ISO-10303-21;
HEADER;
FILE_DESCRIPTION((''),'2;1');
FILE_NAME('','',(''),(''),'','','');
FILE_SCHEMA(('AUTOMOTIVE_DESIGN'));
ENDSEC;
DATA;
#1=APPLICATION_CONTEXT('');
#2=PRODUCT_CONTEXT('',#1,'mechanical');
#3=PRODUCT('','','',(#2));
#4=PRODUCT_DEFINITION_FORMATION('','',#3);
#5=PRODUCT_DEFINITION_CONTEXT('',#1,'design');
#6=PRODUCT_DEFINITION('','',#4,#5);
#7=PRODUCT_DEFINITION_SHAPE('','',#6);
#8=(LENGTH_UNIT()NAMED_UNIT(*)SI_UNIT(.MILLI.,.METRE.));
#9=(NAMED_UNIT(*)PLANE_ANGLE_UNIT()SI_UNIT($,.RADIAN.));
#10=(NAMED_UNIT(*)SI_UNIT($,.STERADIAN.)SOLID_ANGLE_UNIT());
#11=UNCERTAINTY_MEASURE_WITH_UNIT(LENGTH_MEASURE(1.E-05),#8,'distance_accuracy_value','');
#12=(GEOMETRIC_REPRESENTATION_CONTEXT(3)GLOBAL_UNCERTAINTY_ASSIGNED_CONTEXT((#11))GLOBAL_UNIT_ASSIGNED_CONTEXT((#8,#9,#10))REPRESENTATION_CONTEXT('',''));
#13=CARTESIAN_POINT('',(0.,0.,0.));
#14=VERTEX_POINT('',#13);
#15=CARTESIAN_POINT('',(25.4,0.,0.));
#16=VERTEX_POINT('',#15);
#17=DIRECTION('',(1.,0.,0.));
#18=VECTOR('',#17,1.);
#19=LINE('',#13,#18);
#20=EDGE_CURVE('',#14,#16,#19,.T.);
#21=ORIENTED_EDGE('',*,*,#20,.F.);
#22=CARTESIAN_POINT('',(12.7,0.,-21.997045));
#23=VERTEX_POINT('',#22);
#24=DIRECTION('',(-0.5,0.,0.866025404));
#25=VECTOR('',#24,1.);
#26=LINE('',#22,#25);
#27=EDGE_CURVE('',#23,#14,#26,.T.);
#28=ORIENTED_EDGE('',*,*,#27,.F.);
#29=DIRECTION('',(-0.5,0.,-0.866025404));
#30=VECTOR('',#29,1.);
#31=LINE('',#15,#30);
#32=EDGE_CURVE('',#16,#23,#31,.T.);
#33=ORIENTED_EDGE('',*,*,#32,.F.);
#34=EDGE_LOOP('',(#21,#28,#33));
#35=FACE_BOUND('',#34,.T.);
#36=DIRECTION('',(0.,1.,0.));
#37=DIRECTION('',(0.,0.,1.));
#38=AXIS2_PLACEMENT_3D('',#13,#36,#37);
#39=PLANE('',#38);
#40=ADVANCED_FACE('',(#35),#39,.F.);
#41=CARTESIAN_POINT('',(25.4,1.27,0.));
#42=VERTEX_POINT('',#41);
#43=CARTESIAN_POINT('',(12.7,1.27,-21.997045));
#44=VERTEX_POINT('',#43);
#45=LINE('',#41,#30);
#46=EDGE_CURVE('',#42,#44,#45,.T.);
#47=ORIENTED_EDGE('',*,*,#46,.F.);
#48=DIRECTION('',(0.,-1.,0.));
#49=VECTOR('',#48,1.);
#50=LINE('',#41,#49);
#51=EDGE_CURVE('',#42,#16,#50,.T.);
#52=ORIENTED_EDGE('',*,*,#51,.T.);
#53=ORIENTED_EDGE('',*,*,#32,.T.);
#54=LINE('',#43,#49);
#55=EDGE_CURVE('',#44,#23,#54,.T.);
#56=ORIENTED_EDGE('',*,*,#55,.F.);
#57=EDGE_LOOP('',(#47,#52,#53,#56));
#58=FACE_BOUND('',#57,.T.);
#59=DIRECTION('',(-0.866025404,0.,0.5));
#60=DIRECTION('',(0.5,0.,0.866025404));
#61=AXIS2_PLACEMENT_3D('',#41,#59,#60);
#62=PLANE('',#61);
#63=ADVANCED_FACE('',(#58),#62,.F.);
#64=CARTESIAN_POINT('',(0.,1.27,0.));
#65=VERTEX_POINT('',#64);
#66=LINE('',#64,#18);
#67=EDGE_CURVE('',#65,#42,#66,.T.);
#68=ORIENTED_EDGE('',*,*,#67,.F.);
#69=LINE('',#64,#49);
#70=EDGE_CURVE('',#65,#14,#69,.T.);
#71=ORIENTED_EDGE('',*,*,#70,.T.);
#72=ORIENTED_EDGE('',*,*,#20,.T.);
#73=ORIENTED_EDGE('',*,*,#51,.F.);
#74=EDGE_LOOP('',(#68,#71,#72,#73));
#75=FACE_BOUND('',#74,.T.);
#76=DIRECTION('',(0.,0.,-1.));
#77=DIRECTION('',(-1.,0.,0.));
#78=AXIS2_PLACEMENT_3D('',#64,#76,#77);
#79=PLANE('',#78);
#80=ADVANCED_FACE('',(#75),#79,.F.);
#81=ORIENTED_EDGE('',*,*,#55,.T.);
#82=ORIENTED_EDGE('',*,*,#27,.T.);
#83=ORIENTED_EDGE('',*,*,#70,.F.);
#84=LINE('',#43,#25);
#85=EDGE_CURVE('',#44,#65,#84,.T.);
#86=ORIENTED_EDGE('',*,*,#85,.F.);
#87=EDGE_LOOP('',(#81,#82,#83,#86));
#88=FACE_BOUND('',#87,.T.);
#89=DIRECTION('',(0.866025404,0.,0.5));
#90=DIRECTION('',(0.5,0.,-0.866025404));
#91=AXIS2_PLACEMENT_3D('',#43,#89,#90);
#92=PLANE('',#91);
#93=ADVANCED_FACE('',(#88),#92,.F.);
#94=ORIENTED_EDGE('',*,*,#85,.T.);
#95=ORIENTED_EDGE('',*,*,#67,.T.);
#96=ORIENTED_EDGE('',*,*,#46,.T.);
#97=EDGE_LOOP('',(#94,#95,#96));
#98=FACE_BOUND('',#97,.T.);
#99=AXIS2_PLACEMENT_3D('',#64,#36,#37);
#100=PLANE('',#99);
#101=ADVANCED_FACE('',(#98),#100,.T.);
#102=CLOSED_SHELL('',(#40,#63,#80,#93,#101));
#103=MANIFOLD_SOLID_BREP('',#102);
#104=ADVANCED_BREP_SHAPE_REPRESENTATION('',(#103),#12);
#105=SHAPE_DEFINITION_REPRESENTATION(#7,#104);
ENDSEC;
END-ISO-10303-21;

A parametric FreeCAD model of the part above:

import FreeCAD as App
import Part
import Sketcher
from FreeCAD import Vector
Q = App.Units.Quantity


def add_polygon(sketch, points):
    """Adds a closed chain of lines whose ends are joined by coincident constraints."""
    first, n = sketch.GeometryCount, len(points)
    for a, b in zip(points, points[1:] + points[:1]):
        sketch.addGeometry(Part.LineSegment(App.Vector(*a, 0), App.Vector(*b, 0)), False)
    for i in range(n):
        sketch.addConstraint(Sketcher.Constraint("Coincident", first + i, 2, first + (i + 1) % n, 1))

doc = App.newDocument("Part")
body = doc.addObject("PartDesign::Body", "Body")

# Sketch on XZ plane
sketch1 = body.newObject("Sketcher::SketchObject", "Sketch")
sketch1.AttachmentSupport = (doc.getObject("XZ_Plane"), [""])
sketch1.MapMode = "FlatFace"
add_polygon(sketch1, [(0, 0), (25.4, 0), (12.7, -21.997045)])  # lines 0-2
sketch1.addConstraint([
    Sketcher.Constraint("Horizontal", 0),
    Sketcher.Constraint("Coincident", 2, 2, -1, 1),
    Sketcher.Constraint("Equal", 1, 2),
    Sketcher.Constraint("DistanceX", 0, 1, 0, 2, Q("1 in")),
    Sketcher.Constraint("Distance", 1, Q("1 in")),
])
pad1 = body.newObject("PartDesign::Pad", "Pad")
pad1.Profile = sketch1
pad1.Length = Q("0.05 in")
pad1.Reversed = True

doc.recompute()
